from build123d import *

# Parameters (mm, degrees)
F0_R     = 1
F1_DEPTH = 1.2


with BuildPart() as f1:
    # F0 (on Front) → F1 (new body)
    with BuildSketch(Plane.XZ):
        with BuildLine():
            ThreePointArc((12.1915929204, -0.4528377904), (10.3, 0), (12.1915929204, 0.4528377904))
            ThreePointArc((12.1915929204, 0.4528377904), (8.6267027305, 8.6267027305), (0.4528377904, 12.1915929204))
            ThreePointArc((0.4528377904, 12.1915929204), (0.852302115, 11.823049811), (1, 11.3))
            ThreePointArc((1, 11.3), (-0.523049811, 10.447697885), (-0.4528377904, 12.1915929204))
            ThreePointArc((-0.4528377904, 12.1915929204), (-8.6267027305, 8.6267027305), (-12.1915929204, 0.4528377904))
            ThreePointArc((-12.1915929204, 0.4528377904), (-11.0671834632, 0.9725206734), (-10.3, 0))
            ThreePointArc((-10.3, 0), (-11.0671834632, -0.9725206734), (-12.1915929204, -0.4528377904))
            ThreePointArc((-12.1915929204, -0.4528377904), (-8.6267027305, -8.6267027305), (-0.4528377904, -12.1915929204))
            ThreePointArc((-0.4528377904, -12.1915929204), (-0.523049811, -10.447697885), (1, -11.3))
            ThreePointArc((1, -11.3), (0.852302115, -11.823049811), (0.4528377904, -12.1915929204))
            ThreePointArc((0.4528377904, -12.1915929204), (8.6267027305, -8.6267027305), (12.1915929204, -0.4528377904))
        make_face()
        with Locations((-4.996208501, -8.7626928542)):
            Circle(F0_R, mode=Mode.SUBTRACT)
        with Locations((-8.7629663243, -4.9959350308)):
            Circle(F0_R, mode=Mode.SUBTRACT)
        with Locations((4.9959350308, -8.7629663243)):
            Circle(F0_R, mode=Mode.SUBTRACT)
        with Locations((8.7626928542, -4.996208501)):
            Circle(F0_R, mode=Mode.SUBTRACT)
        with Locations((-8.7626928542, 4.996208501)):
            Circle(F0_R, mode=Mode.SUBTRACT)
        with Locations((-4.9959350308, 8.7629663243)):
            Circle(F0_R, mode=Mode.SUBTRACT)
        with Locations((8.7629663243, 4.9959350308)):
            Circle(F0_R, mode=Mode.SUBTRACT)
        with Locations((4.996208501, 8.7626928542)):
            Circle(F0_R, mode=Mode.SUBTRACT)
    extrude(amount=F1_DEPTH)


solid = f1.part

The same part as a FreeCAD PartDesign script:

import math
import FreeCAD as App
import Part
import Sketcher

V = App.Vector
Q = App.Units.Quantity

doc = App.newDocument("Part")
params = doc.addObject("Spreadsheet::Sheet", "Params")
for row, (alias, value) in enumerate([
    ("sketch1_diameter", "2 mm"),
    ("sketch1_radius", "12.2 mm"),
    ("pad1_length", "1.2 mm"),
], start=1):
    params.set(f"A{row}", alias)
    params.set(f"B{row}", "=" + value)
    params.setAlias(f"B{row}", alias)

body = doc.addObject("PartDesign::Body", "Body")

sketch1 = doc.addObject("Sketcher::SketchObject", "Sketch")
body.addObject(sketch1)
sketch1.AttachmentSupport = (doc.XZ_Plane, [""])
sketch1.MapMode = "FlatFace"
sketch1.addGeometry([
    Part.ArcOfCircle(Part.Circle(V(11.3, 0, 0), V(0, 0, 1), 1), math.radians(26.9259), math.radians(333.0741)),
    Part.ArcOfCircle(Part.Circle(V(0, 0, 0), V(0, 0, 1), 12.2), math.radians(2.127185), math.radians(87.872815)),
    Part.ArcOfCircle(Part.Circle(V(0, 11.3, 0), V(0, 0, 1), 1), math.radians(0), math.radians(63.0741)),
    Part.ArcOfCircle(Part.Circle(V(0, 11.3, 0), V(0, 0, 1), 1), math.radians(116.9259), math.radians(360)),
    Part.ArcOfCircle(Part.Circle(V(0, 0, 0), V(0, 0, 1), 12.2), math.radians(92.127185), math.radians(177.872815)),
    Part.ArcOfCircle(Part.Circle(V(-11.3, 0, 0), V(0, 0, 1), 1), math.radians(0), math.radians(153.0741)),
    Part.ArcOfCircle(Part.Circle(V(-11.3, 0, 0), V(0, 0, 1), 1), math.radians(-153.0741), math.radians(0)),
    Part.ArcOfCircle(Part.Circle(V(0, 0, 0), V(0, 0, 1), 12.2), math.radians(-177.872815), math.radians(-92.127185)),
    Part.ArcOfCircle(Part.Circle(V(0, -11.3, 0), V(0, 0, 1), 1), math.radians(0), math.radians(243.0741)),
    Part.ArcOfCircle(Part.Circle(V(0, -11.3, 0), V(0, 0, 1), 1), math.radians(-63.0741), math.radians(0)),
    Part.ArcOfCircle(Part.Circle(V(0, 0, 0), V(0, 0, 1), 12.2), math.radians(-87.872815), math.radians(-2.127185)),
    Part.Circle(V(-4.996209, -8.762693, 0), V(0, 0, 1), 1),
    Part.Circle(V(-8.762966, -4.995935, 0), V(0, 0, 1), 1),
    Part.Circle(V(4.995935, -8.762966, 0), V(0, 0, 1), 1),
    Part.Circle(V(8.762693, -4.996209, 0), V(0, 0, 1), 1),
    Part.Circle(V(-8.762693, 4.996209, 0), V(0, 0, 1), 1),
    Part.Circle(V(-4.995935, 8.762966, 0), V(0, 0, 1), 1),
    Part.Circle(V(8.762966, 4.995935, 0), V(0, 0, 1), 1),
    Part.Circle(V(4.996209, 8.762693, 0), V(0, 0, 1), 1),
], False)
sketch1.addConstraint([
    Sketcher.Constraint("Coincident", 0, 1, 1, 1),
    Sketcher.Constraint("Coincident", 1, 2, 2, 2),
    Sketcher.Constraint("Tangent", 2, 1, 3, 2),
    Sketcher.Constraint("Coincident", 3, 1, 4, 1),
    Sketcher.Constraint("Coincident", 4, 2, 5, 2),
    Sketcher.Constraint("Tangent", 5, 1, 6, 2),
    Sketcher.Constraint("Coincident", 6, 1, 7, 1),
    Sketcher.Constraint("Coincident", 7, 2, 8, 2),
    Sketcher.Constraint("Tangent", 8, 1, 9, 2),
    Sketcher.Constraint("Coincident", 9, 1, 10, 1),
    Sketcher.Constraint("Coincident", 10, 2, 0, 2),
    Sketcher.Constraint("Coincident", 1, 3, -1, 1),
    Sketcher.Constraint("Coincident", 4, 3, -1, 1),
    Sketcher.Constraint("Coincident", 7, 3, -1, 1),
    Sketcher.Constraint("Coincident", 10, 3, -1, 1),
    Sketcher.Constraint("Equal", 0, 2),
    Sketcher.Constraint("Equal", 2, 3),
    Sketcher.Constraint("Equal", 1, 4),
    Sketcher.Constraint("Equal", 3, 5),
    Sketcher.Constraint("Equal", 5, 6),
    Sketcher.Constraint("Equal", 4, 7),
    Sketcher.Constraint("Equal", 6, 8),
    Sketcher.Constraint("Equal", 8, 9),
    Sketcher.Constraint("Equal", 7, 10),
    Sketcher.Constraint("Equal", 9, 11),
    Sketcher.Constraint("Equal", 11, 12),
    Sketcher.Constraint("Equal", 12, 13),
    Sketcher.Constraint("Equal", 13, 14),
    Sketcher.Constraint("Equal", 14, 15),
    Sketcher.Constraint("Equal", 15, 16),
    Sketcher.Constraint("Equal", 16, 17),
    Sketcher.Constraint("Equal", 17, 18),
    Sketcher.Constraint("Symmetric", 0, 3, 5, 3, -1, 1),
    Sketcher.Constraint("Symmetric", 2, 3, 8, 3, -1, 1),
    Sketcher.Constraint("Symmetric", 14, 3, 15, 3, -1, 1),
    Sketcher.Constraint("Symmetric", 13, 3, 16, 3, -1, 1),
    Sketcher.Constraint("Symmetric", 12, 3, 17, 3, -1, 1),
    Sketcher.Constraint("Symmetric", 11, 3, 18, 3, -1, 1),
    Sketcher.Constraint("Symmetric", 2, 1, 8, 1, -1),
    Sketcher.Constraint("PointOnObject", 0, 3, -1),
    Sketcher.Constraint("PointOnObject", 5, 1, -1),
    Sketcher.Constraint("Horizontal", 3, 3, 2, 1),
    Sketcher.Constraint("Diameter", 11, Q("2 mm")),
    Sketcher.Constraint("Radius", 1, Q("12.2 mm")),
    Sketcher.Constraint("DistanceX", -1, 1, 0, 3, Q("11.3 mm")),
    Sketcher.Constraint("DistanceY", -1, 1, 2, 3, Q("11.3 mm")),
    Sketcher.Constraint("DistanceX", 14, 3, 0, 1, Q("3.4289 mm")),
    Sketcher.Constraint("DistanceY", 18, 3, 1, 2, Q("3.4289 mm")),
    Sketcher.Constraint("DistanceX", 11, 3, -1, 1, Q("4.996209 mm")),
    Sketcher.Constraint("DistanceY", 14, 3, -1, 1, Q("4.996209 mm")),
    Sketcher.Constraint("DistanceX", 1, 2, 17, 3, Q("8.310129 mm")),
    Sketcher.Constraint("DistanceY", 4, 2, 16, 3, Q("8.310129 mm")),
    Sketcher.Constraint("DistanceY", 12, 3, -1, 1, Q("4.995935 mm")),
    Sketcher.Constraint("DistanceX", -1, 1, 13, 3, Q("4.995935 mm")),
])
sketch1.setExpression("Constraints[42]", "Params.sketch1_diameter")
sketch1.setExpression("Constraints[43]", "Params.sketch1_radius")
pad1 = doc.addObject("PartDesign::Pad", "Pad")
body.addObject(pad1)
pad1.Profile = sketch1
pad1.setExpression("Length", "Params.pad1_length")

doc.recompute()
